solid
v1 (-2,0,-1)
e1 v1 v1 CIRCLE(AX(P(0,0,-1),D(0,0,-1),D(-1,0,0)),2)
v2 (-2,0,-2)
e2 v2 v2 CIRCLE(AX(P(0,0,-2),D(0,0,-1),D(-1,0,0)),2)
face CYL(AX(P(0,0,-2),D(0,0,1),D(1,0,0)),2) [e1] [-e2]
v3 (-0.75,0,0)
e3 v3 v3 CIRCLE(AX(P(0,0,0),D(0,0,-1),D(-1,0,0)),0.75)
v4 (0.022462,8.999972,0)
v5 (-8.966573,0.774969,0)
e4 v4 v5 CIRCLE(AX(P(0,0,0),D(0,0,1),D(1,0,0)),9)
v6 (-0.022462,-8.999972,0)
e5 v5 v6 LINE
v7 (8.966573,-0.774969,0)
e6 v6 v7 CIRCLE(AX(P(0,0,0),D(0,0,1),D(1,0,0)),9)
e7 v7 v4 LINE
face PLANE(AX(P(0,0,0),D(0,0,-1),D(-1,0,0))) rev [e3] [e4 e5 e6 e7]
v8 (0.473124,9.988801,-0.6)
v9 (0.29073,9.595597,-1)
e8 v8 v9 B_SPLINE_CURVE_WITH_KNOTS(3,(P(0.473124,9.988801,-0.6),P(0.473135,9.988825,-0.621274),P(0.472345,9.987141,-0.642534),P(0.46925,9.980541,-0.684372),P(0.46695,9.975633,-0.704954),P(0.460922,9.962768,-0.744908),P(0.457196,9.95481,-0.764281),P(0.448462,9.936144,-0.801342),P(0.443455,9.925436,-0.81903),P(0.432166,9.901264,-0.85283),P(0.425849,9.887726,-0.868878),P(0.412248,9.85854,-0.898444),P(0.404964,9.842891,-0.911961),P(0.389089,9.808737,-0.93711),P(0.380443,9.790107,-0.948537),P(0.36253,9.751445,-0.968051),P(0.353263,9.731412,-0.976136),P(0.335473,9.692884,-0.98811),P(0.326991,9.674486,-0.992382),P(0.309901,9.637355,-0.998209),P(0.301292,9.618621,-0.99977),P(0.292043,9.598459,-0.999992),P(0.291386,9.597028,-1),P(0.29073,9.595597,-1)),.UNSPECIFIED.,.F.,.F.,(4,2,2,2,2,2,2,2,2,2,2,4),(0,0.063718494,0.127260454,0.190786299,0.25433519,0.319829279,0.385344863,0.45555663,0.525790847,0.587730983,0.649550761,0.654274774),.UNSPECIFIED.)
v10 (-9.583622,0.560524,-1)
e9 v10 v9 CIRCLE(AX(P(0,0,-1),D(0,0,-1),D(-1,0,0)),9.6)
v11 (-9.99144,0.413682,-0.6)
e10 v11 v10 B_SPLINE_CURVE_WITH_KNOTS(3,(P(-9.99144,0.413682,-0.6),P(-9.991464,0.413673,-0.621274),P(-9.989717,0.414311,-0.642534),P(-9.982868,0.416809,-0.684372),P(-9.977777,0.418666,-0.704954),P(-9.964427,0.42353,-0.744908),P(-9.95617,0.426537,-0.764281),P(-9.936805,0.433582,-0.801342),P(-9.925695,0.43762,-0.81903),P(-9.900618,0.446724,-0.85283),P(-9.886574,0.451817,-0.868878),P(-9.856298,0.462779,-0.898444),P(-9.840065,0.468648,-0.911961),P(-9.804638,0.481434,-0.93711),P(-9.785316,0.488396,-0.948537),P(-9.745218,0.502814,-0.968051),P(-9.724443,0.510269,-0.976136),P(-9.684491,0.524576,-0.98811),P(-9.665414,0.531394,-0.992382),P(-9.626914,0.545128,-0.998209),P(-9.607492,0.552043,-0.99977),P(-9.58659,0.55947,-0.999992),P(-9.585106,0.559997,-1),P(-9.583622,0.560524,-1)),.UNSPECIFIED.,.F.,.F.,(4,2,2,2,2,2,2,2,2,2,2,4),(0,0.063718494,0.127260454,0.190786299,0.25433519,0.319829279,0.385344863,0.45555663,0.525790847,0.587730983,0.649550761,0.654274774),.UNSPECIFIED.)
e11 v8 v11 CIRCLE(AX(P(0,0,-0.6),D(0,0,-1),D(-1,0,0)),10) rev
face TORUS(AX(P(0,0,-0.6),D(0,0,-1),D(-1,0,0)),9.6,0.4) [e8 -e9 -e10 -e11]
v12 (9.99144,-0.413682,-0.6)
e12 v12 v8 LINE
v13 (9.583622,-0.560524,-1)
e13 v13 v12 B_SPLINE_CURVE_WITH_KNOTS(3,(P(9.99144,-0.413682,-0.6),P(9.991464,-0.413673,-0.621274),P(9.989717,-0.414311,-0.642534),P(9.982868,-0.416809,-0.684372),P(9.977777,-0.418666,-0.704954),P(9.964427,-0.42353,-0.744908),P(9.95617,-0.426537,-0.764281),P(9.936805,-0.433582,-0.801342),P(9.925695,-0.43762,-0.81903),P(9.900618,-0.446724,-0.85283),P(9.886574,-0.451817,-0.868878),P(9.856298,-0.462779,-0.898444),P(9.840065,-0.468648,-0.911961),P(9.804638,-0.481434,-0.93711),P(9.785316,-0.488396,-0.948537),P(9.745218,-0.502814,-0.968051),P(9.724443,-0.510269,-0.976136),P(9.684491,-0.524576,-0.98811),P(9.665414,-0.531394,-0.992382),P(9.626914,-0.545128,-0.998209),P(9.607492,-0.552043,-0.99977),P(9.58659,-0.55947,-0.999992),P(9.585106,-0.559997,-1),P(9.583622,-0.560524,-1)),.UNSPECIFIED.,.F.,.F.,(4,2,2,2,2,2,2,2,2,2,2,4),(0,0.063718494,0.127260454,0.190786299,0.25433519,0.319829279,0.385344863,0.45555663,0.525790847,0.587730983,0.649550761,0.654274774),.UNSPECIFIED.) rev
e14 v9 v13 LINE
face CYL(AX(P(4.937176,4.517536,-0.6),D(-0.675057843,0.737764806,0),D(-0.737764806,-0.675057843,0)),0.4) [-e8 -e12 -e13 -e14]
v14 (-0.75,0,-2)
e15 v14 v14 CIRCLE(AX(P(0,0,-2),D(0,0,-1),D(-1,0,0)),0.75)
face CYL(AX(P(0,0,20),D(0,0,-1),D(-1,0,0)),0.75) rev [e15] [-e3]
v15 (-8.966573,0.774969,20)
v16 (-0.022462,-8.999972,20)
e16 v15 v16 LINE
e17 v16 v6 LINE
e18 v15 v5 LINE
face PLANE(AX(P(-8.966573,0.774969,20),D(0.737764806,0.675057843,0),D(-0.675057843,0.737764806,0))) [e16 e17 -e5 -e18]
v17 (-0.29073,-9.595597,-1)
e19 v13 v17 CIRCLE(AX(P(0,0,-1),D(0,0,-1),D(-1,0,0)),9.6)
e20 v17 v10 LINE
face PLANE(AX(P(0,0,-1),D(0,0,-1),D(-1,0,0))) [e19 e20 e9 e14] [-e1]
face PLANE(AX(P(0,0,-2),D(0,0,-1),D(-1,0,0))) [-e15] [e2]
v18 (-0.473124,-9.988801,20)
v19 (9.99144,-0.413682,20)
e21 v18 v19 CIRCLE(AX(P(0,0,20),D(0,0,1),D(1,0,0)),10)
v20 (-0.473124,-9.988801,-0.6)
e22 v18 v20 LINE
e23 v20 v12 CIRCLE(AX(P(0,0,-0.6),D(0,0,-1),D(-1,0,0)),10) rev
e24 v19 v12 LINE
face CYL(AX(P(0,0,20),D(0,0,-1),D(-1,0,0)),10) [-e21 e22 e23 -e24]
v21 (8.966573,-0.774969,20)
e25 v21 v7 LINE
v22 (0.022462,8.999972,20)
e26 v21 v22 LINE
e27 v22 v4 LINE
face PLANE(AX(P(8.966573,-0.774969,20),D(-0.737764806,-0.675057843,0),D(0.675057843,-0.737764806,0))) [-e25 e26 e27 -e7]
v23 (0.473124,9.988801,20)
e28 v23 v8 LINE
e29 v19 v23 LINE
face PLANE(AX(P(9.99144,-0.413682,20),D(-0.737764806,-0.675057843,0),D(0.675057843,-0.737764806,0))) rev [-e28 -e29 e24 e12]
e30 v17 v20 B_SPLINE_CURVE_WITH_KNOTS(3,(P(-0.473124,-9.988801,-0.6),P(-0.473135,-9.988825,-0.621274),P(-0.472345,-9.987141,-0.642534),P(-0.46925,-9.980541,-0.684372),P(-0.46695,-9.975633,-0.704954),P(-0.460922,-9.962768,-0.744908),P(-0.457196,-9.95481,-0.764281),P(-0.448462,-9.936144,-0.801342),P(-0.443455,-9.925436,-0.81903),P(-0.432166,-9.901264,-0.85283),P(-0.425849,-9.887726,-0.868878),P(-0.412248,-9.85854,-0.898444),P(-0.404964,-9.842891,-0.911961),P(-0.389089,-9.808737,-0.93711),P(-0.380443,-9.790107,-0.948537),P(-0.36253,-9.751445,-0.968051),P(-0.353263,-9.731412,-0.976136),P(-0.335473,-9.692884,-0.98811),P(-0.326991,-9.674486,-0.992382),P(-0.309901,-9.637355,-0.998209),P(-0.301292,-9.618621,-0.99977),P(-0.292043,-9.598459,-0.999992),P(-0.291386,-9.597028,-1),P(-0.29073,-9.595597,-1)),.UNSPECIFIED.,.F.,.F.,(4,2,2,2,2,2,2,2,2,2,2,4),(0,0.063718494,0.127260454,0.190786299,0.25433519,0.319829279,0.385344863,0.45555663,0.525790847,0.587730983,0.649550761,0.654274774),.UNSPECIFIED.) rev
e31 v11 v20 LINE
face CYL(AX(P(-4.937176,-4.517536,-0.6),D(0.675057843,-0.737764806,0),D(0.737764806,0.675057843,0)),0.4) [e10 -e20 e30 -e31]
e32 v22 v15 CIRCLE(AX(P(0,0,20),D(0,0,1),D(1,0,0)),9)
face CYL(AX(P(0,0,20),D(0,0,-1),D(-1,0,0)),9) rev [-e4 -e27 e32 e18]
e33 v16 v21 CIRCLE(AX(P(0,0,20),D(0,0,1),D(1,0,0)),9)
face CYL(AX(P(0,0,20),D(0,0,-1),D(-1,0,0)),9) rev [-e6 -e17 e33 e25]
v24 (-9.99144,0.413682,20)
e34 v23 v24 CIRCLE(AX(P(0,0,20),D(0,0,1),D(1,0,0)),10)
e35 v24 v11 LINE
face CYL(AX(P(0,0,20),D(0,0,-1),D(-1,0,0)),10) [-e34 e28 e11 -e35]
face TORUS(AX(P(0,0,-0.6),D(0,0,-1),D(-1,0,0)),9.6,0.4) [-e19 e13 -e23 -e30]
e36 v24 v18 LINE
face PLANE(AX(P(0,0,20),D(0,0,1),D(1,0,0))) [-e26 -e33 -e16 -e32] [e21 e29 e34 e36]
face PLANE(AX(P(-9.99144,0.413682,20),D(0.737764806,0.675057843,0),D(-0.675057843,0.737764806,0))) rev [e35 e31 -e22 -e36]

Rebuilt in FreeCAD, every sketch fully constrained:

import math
import FreeCAD as App
import Part
import Sketcher

V = App.Vector


def edges_at(feature, points):
    """Names of the edges that pass closest to the given points."""
    edges = feature.Shape.Edges
    near = lambda p: min(range(len(edges)), key=lambda i: edges[i].distToShape(Part.Vertex(*p))[0])
    return sorted({f"Edge{near(p) + 1}" for p in points})

doc = App.newDocument("Part")
body = doc.addObject("PartDesign::Body", "Body")

sketch1 = body.newObject("Sketcher::SketchObject", "Sketch")
sketch1.AttachmentSupport = (doc.getObject("XY_Plane"), [""])
sketch1.MapMode = "FlatFace"
sketch1.addGeometry(Part.LineSegment(V(-10, 0, 0), V(0, -10, 0)), False)
sketch1.addGeometry(Part.ArcOfCircle(Part.Circle(V(0, 0, 0), V(0, 0, 1), 10), math.radians(-93), math.radians(-2)), False)
sketch1.addGeometry(Part.LineSegment(V(10, 0, 0), V(0, 10, 0)), False)
sketch1.addGeometry(Part.ArcOfCircle(Part.Circle(V(0, 0, 0), V(0, 0, 1), 10), math.radians(87), math.radians(178)), False)
sketch1.addGeometry(Part.LineSegment(V(0, -9, 0), V(-9, 1, 0)), False)
sketch1.addGeometry(Part.ArcOfCircle(Part.Circle(V(0, 0, 0), V(0, 0, 1), 9), math.radians(90), math.radians(175)), False)
sketch1.addGeometry(Part.LineSegment(V(0, 9, 0), V(9, -1, 0)), False)
sketch1.addGeometry(Part.ArcOfCircle(Part.Circle(V(0, 0, 0), V(0, 0, 1), 9), math.radians(-90), math.radians(-5)), False)
sketch1.addConstraint(Sketcher.Constraint("Coincident", 0, 2, 1, 1))
sketch1.addConstraint(Sketcher.Constraint("Coincident", 1, 2, 2, 1))
sketch1.addConstraint(Sketcher.Constraint("Coincident", 2, 2, 3, 1))
sketch1.addConstraint(Sketcher.Constraint("Coincident", 3, 2, 0, 1))
sketch1.addConstraint(Sketcher.Constraint("Coincident", 4, 2, 5, 2))
sketch1.addConstraint(Sketcher.Constraint("Coincident", 5, 1, 6, 1))
sketch1.addConstraint(Sketcher.Constraint("Coincident", 6, 2, 7, 2))
sketch1.addConstraint(Sketcher.Constraint("Coincident", 7, 1, 4, 1))
sketch1.addConstraint(Sketcher.Constraint("Coincident", 1, 3, -1, 1))
sketch1.addConstraint(Sketcher.Constraint("Coincident", 3, 3, -1, 1))
sketch1.addConstraint(Sketcher.Constraint("Coincident", 5, 3, -1, 1))
sketch1.addConstraint(Sketcher.Constraint("Coincident", 7, 3, -1, 1))
sketch1.addConstraint(Sketcher.Constraint("Equal", 1, 3))
sketch1.addConstraint(Sketcher.Constraint("Equal", 5, 7))
sketch1.addConstraint(Sketcher.Constraint("Parallel", 0, 2))
sketch1.addConstraint(Sketcher.Constraint("Parallel", 2, 4))
sketch1.addConstraint(Sketcher.Constraint("Parallel", 4, 6))
sketch1.addConstraint(Sketcher.Constraint("Equal", 0, 2))
sketch1.addConstraint(Sketcher.Constraint("Equal", 4, 6))
sketch1.addConstraint(Sketcher.Constraint("Radius", 1, 10.0))
sketch1.addConstraint(Sketcher.Constraint("Radius", 5, 9.0))
sketch1.addConstraint(Sketcher.Constraint("Distance", 0, 14.1))
sketch1.addConstraint(Sketcher.Constraint("Distance", 4, 13.249399))
sketch1.addConstraint(Sketcher.Constraint("DistanceY", 0, 2, -1, 1, 9.988801))
pad1 = body.newObject("PartDesign::Pad", "Pad")
pad1.Profile = sketch1
pad1.Length = 20

sketch2 = body.newObject("Sketcher::SketchObject", "Sketch001")
sketch2.AttachmentSupport = (doc.getObject("XY_Plane"), [""])
sketch2.MapMode = "FlatFace"
sketch2.AttachmentOffset = App.Placement(V(0, 0, -1), App.Rotation())
sketch2.addGeometry(Part.LineSegment(V(0, 10, 0), V(10, 0, 0)), False)
sketch2.addGeometry(Part.ArcOfCircle(Part.Circle(V(0, 0, 0), V(0, 0, 1), 10), math.radians(-93), math.radians(-2)), False)
sketch2.addGeometry(Part.LineSegment(V(0, -10, 0), V(-10, 0, 0)), False)
sketch2.addGeometry(Part.ArcOfCircle(Part.Circle(V(0, 0, 0), V(0, 0, 1), 10), math.radians(87), math.radians(178)), False)
sketch2.addConstraint(Sketcher.Constraint("Coincident", 0, 2, 1, 2))
sketch2.addConstraint(Sketcher.Constraint("Coincident", 1, 1, 2, 1))
sketch2.addConstraint(Sketcher.Constraint("Coincident", 2, 2, 3, 2))
sketch2.addConstraint(Sketcher.Constraint("Coincident", 3, 1, 0, 1))
sketch2.addConstraint(Sketcher.Constraint("Coincident", 1, 3, -1, 1))
sketch2.addConstraint(Sketcher.Constraint("Coincident", 3, 3, -1, 1))
sketch2.addConstraint(Sketcher.Constraint("Equal", 1, 3))
sketch2.addConstraint(Sketcher.Constraint("Parallel", 0, 2))
sketch2.addConstraint(Sketcher.Constraint("Equal", 0, 2))
sketch2.addConstraint(Sketcher.Constraint("Radius", 1, 10.0))
sketch2.addConstraint(Sketcher.Constraint("Distance", 0, 14.1))
sketch2.addConstraint(Sketcher.Constraint("DistanceY", 1, 1, -1, 1, 9.988801))
pad2 = body.newObject("PartDesign::Pad", "Pad001")
pad2.Profile = sketch2
pad2.Length = 1
doc.recompute()

fillet = body.newObject("PartDesign::Fillet", "Fillet")
fillet.Base = (pad2, edges_at(pad2, [
    (-6.751, 7.378, -1),
    (5.232, 4.788, -1),
    (6.751, -7.378, -1),
    (-5.232, -4.788, -1),
]))
fillet.Radius = 0.4

sketch3 = body.newObject("Sketcher::SketchObject", "Sketch002")
sketch3.AttachmentSupport = (doc.getObject("XY_Plane"), [""])
sketch3.MapMode = "FlatFace"
sketch3.AttachmentOffset = App.Placement(V(0, 0, -1), App.Rotation())
sketch3.addGeometry(Part.Circle(V(0, 0, 0), V(0, 0, 1), 2), False)
sketch3.addConstraint(Sketcher.Constraint("Coincident", 0, 3, -1, 1))
sketch3.addConstraint(Sketcher.Constraint("Diameter", 0, 4.0))
pad3 = body.newObject("PartDesign::Pad", "Pad002")
pad3.Profile = sketch3
pad3.Length = 1
pad3.Reversed = True

sketch4 = body.newObject("Sketcher::SketchObject", "Sketch003")
sketch4.AttachmentSupport = (doc.getObject("XY_Plane"), [""])
sketch4.MapMode = "FlatFace"
sketch4.AttachmentOffset = App.Placement(V(0, 0, -2), App.Rotation())
sketch4.addGeometry(Part.Circle(V(0, 0, 0), V(0, 0, 1), 0.8), False)
sketch4.addConstraint(Sketcher.Constraint("Coincident", 0, 3, -1, 1))
sketch4.addConstraint(Sketcher.Constraint("Diameter", 0, 1.5))
pocket1 = body.newObject("PartDesign::Pocket", "Pocket")
pocket1.Profile = sketch4
pocket1.Type = "ThroughAll"
pocket1.Reversed = True

doc.recompute()
